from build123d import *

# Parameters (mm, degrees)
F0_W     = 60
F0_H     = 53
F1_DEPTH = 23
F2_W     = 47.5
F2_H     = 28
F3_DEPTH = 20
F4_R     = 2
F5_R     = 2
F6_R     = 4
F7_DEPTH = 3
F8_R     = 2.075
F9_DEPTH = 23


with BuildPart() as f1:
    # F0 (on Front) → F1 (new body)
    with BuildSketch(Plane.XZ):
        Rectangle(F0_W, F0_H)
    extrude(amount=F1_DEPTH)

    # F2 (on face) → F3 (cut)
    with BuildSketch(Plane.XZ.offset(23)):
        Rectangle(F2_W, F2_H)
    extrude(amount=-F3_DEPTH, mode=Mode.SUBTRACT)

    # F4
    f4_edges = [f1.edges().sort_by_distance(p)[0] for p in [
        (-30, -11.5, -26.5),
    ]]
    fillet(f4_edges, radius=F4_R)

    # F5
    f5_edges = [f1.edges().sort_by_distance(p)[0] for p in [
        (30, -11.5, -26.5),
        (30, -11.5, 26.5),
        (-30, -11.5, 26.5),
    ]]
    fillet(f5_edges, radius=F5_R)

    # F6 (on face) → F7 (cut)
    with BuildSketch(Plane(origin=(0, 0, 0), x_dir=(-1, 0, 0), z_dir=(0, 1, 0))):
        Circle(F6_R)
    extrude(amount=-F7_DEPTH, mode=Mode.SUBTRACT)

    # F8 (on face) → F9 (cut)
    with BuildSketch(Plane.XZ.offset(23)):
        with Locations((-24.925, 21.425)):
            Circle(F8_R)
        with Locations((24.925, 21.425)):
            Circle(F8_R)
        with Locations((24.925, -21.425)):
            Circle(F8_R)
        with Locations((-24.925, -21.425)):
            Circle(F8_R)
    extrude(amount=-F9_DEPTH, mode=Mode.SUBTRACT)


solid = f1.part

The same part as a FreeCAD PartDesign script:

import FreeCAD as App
import Part
import Sketcher

V = App.Vector


def edges_at(feature, points):
    """Names of the edges that pass closest to the given points."""
    edges = feature.Shape.Edges
    near = lambda p: min(range(len(edges)), key=lambda i: edges[i].distToShape(Part.Vertex(*p))[0])
    return sorted({f"Edge{near(p) + 1}" for p in points})


def add_polygon(sketch, points):
    """Adds a closed chain of lines whose ends are joined by coincident constraints."""
    first, n = sketch.GeometryCount, len(points)
    for a, b in zip(points, points[1:] + points[:1]):
        sketch.addGeometry(Part.LineSegment(App.Vector(*a, 0), App.Vector(*b, 0)), False)
    for i in range(n):
        sketch.addConstraint(Sketcher.Constraint("Coincident", first + i, 2, first + (i + 1) % n, 1))

doc = App.newDocument("Part")
body = doc.addObject("PartDesign::Body", "Body")

sketch1 = body.newObject("Sketcher::SketchObject", "Sketch")
sketch1.AttachmentSupport = (doc.getObject("XZ_Plane"), [""])
sketch1.MapMode = "FlatFace"
add_polygon(sketch1, [(-30, 26.5), (-30, -26.5), (30, -26.5), (30, 26.5)])
sketch1.addConstraint([
    Sketcher.Constraint("Vertical", 0),
    Sketcher.Constraint("Horizontal", 1),
    Sketcher.Constraint("Vertical", 2),
    Sketcher.Constraint("Horizontal", 3),
    Sketcher.Constraint("Symmetric", 0, 2, 2, 2, -1, 1),
    Sketcher.Constraint("DistanceX", 1, 1, 1, 2, 60.0),
    Sketcher.Constraint("DistanceY", 0, 2, 0, 1, 53.0),
])
pad1 = body.newObject("PartDesign::Pad", "Pad")
pad1.Profile = sketch1
pad1.Length = 23

sketch2 = body.newObject("Sketcher::SketchObject", "Sketch001")
sketch2.AttachmentSupport = (doc.getObject("XZ_Plane"), [""])
sketch2.MapMode = "FlatFace"
sketch2.AttachmentOffset = App.Placement(V(0, 0, 23), App.Rotation())
add_polygon(sketch2, [(-23.75, 14), (-23.75, -14), (23.75, -14), (23.75, 14)])
sketch2.addConstraint([
    Sketcher.Constraint("Vertical", 0),
    Sketcher.Constraint("Horizontal", 1),
    Sketcher.Constraint("Vertical", 2),
    Sketcher.Constraint("Horizontal", 3),
    Sketcher.Constraint("Symmetric", 0, 2, 2, 2, -1, 1),
    Sketcher.Constraint("DistanceY", 0, 2, 0, 1, 28.0),
    Sketcher.Constraint("DistanceX", 1, 1, 1, 2, 47.5),
])
pocket1 = body.newObject("PartDesign::Pocket", "Pocket")
pocket1.Profile = sketch2
pocket1.Length = 20
doc.recompute()

fillet = body.newObject("PartDesign::Fillet", "Fillet")
fillet.Base = (pocket1, edges_at(pocket1, [(-30, -11.5, -26.5)]))
fillet.Radius = 2
doc.recompute()

fillet2 = body.newObject("PartDesign::Fillet", "Fillet001")
fillet2.Base = (fillet, edges_at(fillet, [(30, -11.5, -26.5), (30, -11.5, 26.5), (-30, -11.5, 26.5)]))
fillet2.Radius = 2

sketch3 = body.newObject("Sketcher::SketchObject", "Sketch002")
sketch3.AttachmentSupport = (doc.getObject("XZ_Plane"), [""])
sketch3.MapMode = "FlatFace"
sketch3.addGeometry(Part.Circle(V(0, 0, 0), V(0, 0, 1), 4), False)
sketch3.addConstraint([
    Sketcher.Constraint("Coincident", 0, 3, -1, 1),
    Sketcher.Constraint("Diameter", 0, 8.0),
])
pocket2 = body.newObject("PartDesign::Pocket", "Pocket001")
pocket2.Profile = sketch3
pocket2.Length = 3
pocket2.Reversed = True

sketch4 = body.newObject("Sketcher::SketchObject", "Sketch003")
sketch4.AttachmentSupport = (doc.getObject("XZ_Plane"), [""])
sketch4.MapMode = "FlatFace"
sketch4.AttachmentOffset = App.Placement(V(0, 0, 23), App.Rotation())
sketch4.addGeometry([
    Part.Circle(V(-24.925, 21.425, 0), V(0, 0, 1), 2.075),
    Part.Circle(V(24.925, 21.425, 0), V(0, 0, 1), 2.075),
    Part.Circle(V(24.925, -21.425, 0), V(0, 0, 1), 2.075),
    Part.Circle(V(-24.925, -21.425, 0), V(0, 0, 1), 2.075),
], False)
sketch4.addConstraint([
    Sketcher.Constraint("Equal", 0, 1),
    Sketcher.Constraint("Equal", 1, 2),
    Sketcher.Constraint("Equal", 2, 3),
    Sketcher.Constraint("Symmetric", 0, 3, 2, 3, -1, 1),
    Sketcher.Constraint("Symmetric", 1, 3, 3, 3, -1, 1),
    Sketcher.Constraint("Symmetric", 0, 3, 1, 3, -2),
    Sketcher.Constraint("Diameter", 0, 4.15),
    Sketcher.Constraint("DistanceX", 0, 3, 1, 3, 49.85),
    Sketcher.Constraint("DistanceY", 2, 3, 1, 3, 42.85),
])
pocket3 = body.newObject("PartDesign::Pocket", "Pocket002")
pocket3.Profile = sketch4
pocket3.Length = 23

doc.recompute()
